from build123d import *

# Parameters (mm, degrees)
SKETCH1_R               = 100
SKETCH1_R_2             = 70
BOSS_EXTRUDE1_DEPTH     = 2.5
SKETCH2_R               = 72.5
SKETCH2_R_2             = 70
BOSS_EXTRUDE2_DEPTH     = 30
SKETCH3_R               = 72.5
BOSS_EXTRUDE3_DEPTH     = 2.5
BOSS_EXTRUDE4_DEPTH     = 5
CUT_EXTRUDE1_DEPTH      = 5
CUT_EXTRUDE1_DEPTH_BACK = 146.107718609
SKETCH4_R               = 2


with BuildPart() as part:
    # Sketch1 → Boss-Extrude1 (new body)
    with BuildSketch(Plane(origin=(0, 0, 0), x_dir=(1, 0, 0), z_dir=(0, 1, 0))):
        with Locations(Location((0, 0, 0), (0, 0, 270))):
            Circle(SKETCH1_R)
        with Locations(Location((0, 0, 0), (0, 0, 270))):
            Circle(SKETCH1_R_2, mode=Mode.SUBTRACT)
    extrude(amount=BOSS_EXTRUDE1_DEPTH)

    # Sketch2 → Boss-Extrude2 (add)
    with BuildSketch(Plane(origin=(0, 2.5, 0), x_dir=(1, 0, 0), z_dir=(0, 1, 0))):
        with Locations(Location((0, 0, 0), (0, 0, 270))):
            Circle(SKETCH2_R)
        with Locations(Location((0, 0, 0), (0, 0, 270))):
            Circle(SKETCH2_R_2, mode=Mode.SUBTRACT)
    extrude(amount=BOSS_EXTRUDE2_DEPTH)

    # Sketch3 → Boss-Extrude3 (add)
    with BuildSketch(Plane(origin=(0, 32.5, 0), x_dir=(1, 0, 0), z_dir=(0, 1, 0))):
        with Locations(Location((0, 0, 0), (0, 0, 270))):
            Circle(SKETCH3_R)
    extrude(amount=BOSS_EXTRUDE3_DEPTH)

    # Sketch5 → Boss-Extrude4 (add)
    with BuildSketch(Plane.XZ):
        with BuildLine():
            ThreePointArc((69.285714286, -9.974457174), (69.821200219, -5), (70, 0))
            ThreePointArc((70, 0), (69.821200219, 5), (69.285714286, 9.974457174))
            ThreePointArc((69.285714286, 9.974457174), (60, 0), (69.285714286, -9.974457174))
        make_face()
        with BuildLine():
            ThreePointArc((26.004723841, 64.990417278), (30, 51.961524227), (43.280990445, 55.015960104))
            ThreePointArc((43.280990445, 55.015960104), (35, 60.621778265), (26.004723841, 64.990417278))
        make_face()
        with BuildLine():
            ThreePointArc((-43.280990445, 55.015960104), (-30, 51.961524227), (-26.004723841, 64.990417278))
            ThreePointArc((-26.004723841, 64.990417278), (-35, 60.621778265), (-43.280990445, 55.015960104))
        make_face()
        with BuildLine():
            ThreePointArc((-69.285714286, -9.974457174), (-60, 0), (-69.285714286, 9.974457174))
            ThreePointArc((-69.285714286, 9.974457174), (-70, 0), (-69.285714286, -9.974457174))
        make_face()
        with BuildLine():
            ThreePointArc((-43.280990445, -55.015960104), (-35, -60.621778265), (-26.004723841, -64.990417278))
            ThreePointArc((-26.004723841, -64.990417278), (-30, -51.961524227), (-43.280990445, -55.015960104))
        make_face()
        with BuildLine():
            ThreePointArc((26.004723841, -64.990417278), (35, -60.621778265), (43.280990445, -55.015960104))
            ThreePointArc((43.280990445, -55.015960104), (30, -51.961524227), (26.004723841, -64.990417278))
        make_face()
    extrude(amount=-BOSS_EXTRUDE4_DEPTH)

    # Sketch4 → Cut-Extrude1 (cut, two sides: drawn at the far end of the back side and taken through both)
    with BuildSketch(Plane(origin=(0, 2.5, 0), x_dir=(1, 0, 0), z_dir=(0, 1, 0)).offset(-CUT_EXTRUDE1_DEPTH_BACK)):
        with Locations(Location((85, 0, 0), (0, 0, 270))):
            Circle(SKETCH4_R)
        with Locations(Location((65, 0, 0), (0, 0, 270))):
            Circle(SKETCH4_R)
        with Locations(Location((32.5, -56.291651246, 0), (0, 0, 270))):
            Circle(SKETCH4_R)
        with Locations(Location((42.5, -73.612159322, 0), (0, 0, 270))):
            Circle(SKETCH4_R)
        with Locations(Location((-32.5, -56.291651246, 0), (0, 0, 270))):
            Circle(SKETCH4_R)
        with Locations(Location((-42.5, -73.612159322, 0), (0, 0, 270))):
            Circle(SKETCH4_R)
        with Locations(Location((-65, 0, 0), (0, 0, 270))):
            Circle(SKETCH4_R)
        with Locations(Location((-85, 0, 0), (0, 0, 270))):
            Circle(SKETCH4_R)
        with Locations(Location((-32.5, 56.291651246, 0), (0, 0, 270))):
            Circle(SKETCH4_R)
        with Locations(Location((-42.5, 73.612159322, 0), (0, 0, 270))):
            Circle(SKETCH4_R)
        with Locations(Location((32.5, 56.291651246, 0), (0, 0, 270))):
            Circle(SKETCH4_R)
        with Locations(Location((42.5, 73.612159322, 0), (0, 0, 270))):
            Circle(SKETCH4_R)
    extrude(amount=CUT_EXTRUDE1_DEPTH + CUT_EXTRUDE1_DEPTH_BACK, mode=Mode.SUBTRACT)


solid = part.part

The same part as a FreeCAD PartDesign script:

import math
import FreeCAD as App
import Part
import Sketcher

V = App.Vector

doc = App.newDocument("Part")
body = doc.addObject("PartDesign::Body", "Body")

# Sketch on XZ plane
sketch1 = body.newObject("Sketcher::SketchObject", "Sketch")
sketch1.AttachmentSupport = (doc.getObject("XZ_Plane"), [""])
sketch1.MapMode = "FlatFace"
sketch1.addGeometry([
    Part.Circle(V(0, 0, 0), V(0, 0, 1), 100),
    Part.Circle(V(0, 0, 0), V(0, 0, 1), 70),
], False)
sketch1.addConstraint([
    Sketcher.Constraint("Coincident", 0, 3, -1, 1),
    Sketcher.Constraint("Coincident", 1, 3, -1, 1),
    Sketcher.Constraint("Diameter", 0, 200.0),
    Sketcher.Constraint("Diameter", 1, 140.0),
])
pad1 = body.newObject("PartDesign::Pad", "Pad")
pad1.Profile = sketch1
pad1.Length = 2.5
pad1.Reversed = True

# Sketch on XZ plane
sketch2 = body.newObject("Sketcher::SketchObject", "Sketch001")
sketch2.AttachmentSupport = (doc.getObject("XZ_Plane"), [""])
sketch2.MapMode = "FlatFace"
sketch2.AttachmentOffset = App.Placement(V(0, 0, -2.5), App.Rotation())
sketch2.addGeometry([
    Part.Circle(V(0, 0, 0), V(0, 0, 1), 72),
    Part.Circle(V(0, 0, 0), V(0, 0, 1), 70),
], False)
sketch2.addConstraint([
    Sketcher.Constraint("Coincident", 0, 3, -1, 1),
    Sketcher.Constraint("Coincident", 1, 3, -1, 1),
    Sketcher.Constraint("Diameter", 0, 145.0),
    Sketcher.Constraint("Diameter", 1, 140.0),
])
pad2 = body.newObject("PartDesign::Pad", "Pad001")
pad2.Profile = sketch2
pad2.Length = 30
pad2.Reversed = True

# Sketch on XZ plane
sketch3 = body.newObject("Sketcher::SketchObject", "Sketch002")
sketch3.AttachmentSupport = (doc.getObject("XZ_Plane"), [""])
sketch3.MapMode = "FlatFace"
sketch3.AttachmentOffset = App.Placement(V(0, 0, -32.5), App.Rotation())
sketch3.addGeometry(Part.Circle(V(0, 0, 0), V(0, 0, 1), 72), False)
sketch3.addConstraint([
    Sketcher.Constraint("Coincident", 0, 3, -1, 1),
    Sketcher.Constraint("Diameter", 0, 145.0),
])
pad3 = body.newObject("PartDesign::Pad", "Pad002")
pad3.Profile = sketch3
pad3.Length = 2.5
pad3.Reversed = True

# Sketch on XZ plane
sketch4 = body.newObject("Sketcher::SketchObject", "Sketch003")
sketch4.AttachmentSupport = (doc.getObject("XZ_Plane"), [""])
sketch4.MapMode = "FlatFace"
sketch4.addGeometry([
    Part.ArcOfCircle(Part.Circle(V(0, 0, 0), V(0, 0, 1), 70), math.radians(-8.19), math.radians(0)),  # 0
    Part.ArcOfCircle(Part.Circle(V(0, 0, 0), V(0, 0, 1), 70), math.radians(0), math.radians(8.19)),  # 1
    Part.ArcOfCircle(Part.Circle(V(70, 0, 0), V(0, 0, 1), 10), math.radians(94), math.radians(266)),  # 2
    Part.ArcOfCircle(Part.Circle(V(35, 61, 0), V(0, 0, 1), 10), math.radians(154), math.radians(326)),  # 3
    Part.ArcOfCircle(Part.Circle(V(0, 0, 0), V(0, 0, 1), 70), math.radians(51.81), math.radians(68.19)),  # 4
    Part.ArcOfCircle(Part.Circle(V(-35, 61, 0), V(0, 0, 1), 10), math.radians(-146), math.radians(26)),  # 5
    Part.ArcOfCircle(Part.Circle(V(0, 0, 0), V(0, 0, 1), 70), math.radians(111.81), math.radians(128.19)),  # 6
    Part.ArcOfCircle(Part.Circle(V(-70, 0, 0), V(0, 0, 1), 10), math.radians(-86), math.radians(86)),  # 7
    Part.ArcOfCircle(Part.Circle(V(0, 0, 0), V(0, 0, 1), 70), math.radians(171.81), math.radians(188.19)),  # 8
    Part.ArcOfCircle(Part.Circle(V(0, 0, 0), V(0, 0, 1), 70), math.radians(-128.19), math.radians(-111.81)),  # 9
    Part.ArcOfCircle(Part.Circle(V(-35, -61, 0), V(0, 0, 1), 10), math.radians(-26), math.radians(146)),  # 10
    Part.ArcOfCircle(Part.Circle(V(0, 0, 0), V(0, 0, 1), 70), math.radians(-68.19), math.radians(-51.81)),  # 11
    Part.ArcOfCircle(Part.Circle(V(35, -61, 0), V(0, 0, 1), 10), math.radians(34), math.radians(206)),  # 12
], False)
sketch4.addConstraint([
    Sketcher.Constraint("Tangent", 0, 2, 1, 1),
    Sketcher.Constraint("Coincident", 1, 2, 2, 1),
    Sketcher.Constraint("Coincident", 2, 2, 0, 1),
    Sketcher.Constraint("Coincident", 3, 1, 4, 2),
    Sketcher.Constraint("Coincident", 4, 1, 3, 2),
    Sketcher.Constraint("Coincident", 5, 1, 6, 2),
    Sketcher.Constraint("Coincident", 6, 1, 5, 2),
    Sketcher.Constraint("Coincident", 7, 1, 8, 2),
    Sketcher.Constraint("Coincident", 8, 1, 7, 2),
    Sketcher.Constraint("Coincident", 9, 1, 10, 2),
    Sketcher.Constraint("Coincident", 10, 1, 9, 2),
    Sketcher.Constraint("Coincident", 11, 1, 12, 2),
    Sketcher.Constraint("Coincident", 12, 1, 11, 2),
    Sketcher.Constraint("Coincident", 0, 3, -1, 1),
    Sketcher.Constraint("Coincident", 4, 3, -1, 1),
    Sketcher.Constraint("Coincident", 6, 3, -1, 1),
    Sketcher.Constraint("Coincident", 8, 3, -1, 1),
    Sketcher.Constraint("Coincident", 9, 3, -1, 1),
    Sketcher.Constraint("Coincident", 11, 3, -1, 1),
    Sketcher.Constraint("Coincident", 0, 2, 2, 3),
    Sketcher.Constraint("Equal", 0, 1),
    Sketcher.Constraint("Equal", 2, 3),
    Sketcher.Constraint("Equal", 1, 4),
    Sketcher.Constraint("Equal", 3, 5),
    Sketcher.Constraint("Equal", 4, 6),
    Sketcher.Constraint("Equal", 5, 7),
    Sketcher.Constraint("Equal", 6, 8),
    Sketcher.Constraint("Equal", 8, 9),
    Sketcher.Constraint("Equal", 7, 10),
    Sketcher.Constraint("Equal", 9, 11),
    Sketcher.Constraint("Equal", 10, 12),
    Sketcher.Constraint("Symmetric", 2, 3, 7, 3, -1, 1),
    Sketcher.Constraint("Symmetric", 3, 3, 10, 3, -1, 1),
    Sketcher.Constraint("Symmetric", 5, 3, 12, 3, -1, 1),
    Sketcher.Constraint("Symmetric", 3, 3, 5, 3, -2),
    Sketcher.Constraint("PointOnObject", 2, 3, -1),
    Sketcher.Constraint("Radius", 0, 70.0),
    Sketcher.Constraint("Radius", 2, 10.0),
    Sketcher.Constraint("DistanceX", -1, 1, 3, 3, 35.0),
    Sketcher.Constraint("DistanceY", -1, 1, 3, 3, 60.621778),
])
pad4 = body.newObject("PartDesign::Pad", "Pad003")
pad4.Profile = sketch4
pad4.Length = 5
pad4.Reversed = True

# Sketch on XZ plane
sketch5 = body.newObject("Sketcher::SketchObject", "Sketch004")
sketch5.AttachmentSupport = (doc.getObject("XZ_Plane"), [""])
sketch5.MapMode = "FlatFace"
sketch5.AttachmentOffset = App.Placement(V(0, 0, -2.5), App.Rotation())
sketch5.addGeometry([
    Part.Circle(V(85, 0, 0), V(0, 0, 1), 2),  # 0
    Part.Circle(V(65, 0, 0), V(0, 0, 1), 2),  # 1
    Part.Circle(V(32.5, 56.3, 0), V(0, 0, 1), 2),  # 2
    Part.Circle(V(42.5, 73.6, 0), V(0, 0, 1), 2),  # 3
    Part.Circle(V(-32.5, 56.3, 0), V(0, 0, 1), 2),  # 4
    Part.Circle(V(-42.5, 73.6, 0), V(0, 0, 1), 2),  # 5
    Part.Circle(V(-65, 0, 0), V(0, 0, 1), 2),  # 6
    Part.Circle(V(-85, 0, 0), V(0, 0, 1), 2),  # 7
    Part.Circle(V(-32.5, -56.3, 0), V(0, 0, 1), 2),  # 8
    Part.Circle(V(-42.5, -73.6, 0), V(0, 0, 1), 2),  # 9
    Part.Circle(V(32.5, -56.3, 0), V(0, 0, 1), 2),  # 10
    Part.Circle(V(42.5, -73.6, 0), V(0, 0, 1), 2),  # 11
], False)
sketch5.addConstraint([
    Sketcher.Constraint("Equal", 0, 1),
    Sketcher.Constraint("Equal", 1, 2),
    Sketcher.Constraint("Equal", 2, 3),
    Sketcher.Constraint("Equal", 3, 4),
    Sketcher.Constraint("Equal", 4, 5),
    Sketcher.Constraint("Equal", 5, 6),
    Sketcher.Constraint("Equal", 6, 7),
    Sketcher.Constraint("Equal", 7, 8),
    Sketcher.Constraint("Equal", 8, 9),
    Sketcher.Constraint("Equal", 9, 10),
    Sketcher.Constraint("Equal", 10, 11),
    Sketcher.Constraint("Symmetric", 1, 3, 6, 3, -1, 1),
    Sketcher.Constraint("Symmetric", 0, 3, 7, 3, -1, 1),
    Sketcher.Constraint("Symmetric", 2, 3, 8, 3, -1, 1),
    Sketcher.Constraint("Symmetric", 3, 3, 9, 3, -1, 1),
    Sketcher.Constraint("Symmetric", 4, 3, 10, 3, -1, 1),
    Sketcher.Constraint("Symmetric", 5, 3, 11, 3, -1, 1),
    Sketcher.Constraint("Symmetric", 2, 3, 4, 3, -2),
    Sketcher.Constraint("Symmetric", 3, 3, 5, 3, -2),
    Sketcher.Constraint("PointOnObject", 0, 3, -1),
    Sketcher.Constraint("PointOnObject", 1, 3, -1),
    Sketcher.Constraint("Diameter", 0, 4.0),
    Sketcher.Constraint("DistanceX", -1, 1, 0, 3, 85.0),
    Sketcher.Constraint("DistanceX", -1, 1, 1, 3, 65.0),
    Sketcher.Constraint("DistanceX", 2, 3, 3, 3, 10.0),
    Sketcher.Constraint("DistanceX", 4, 3, 2, 3, 65.0),
    Sketcher.Constraint("DistanceY", -1, 1, 2, 3, 56.291651),
    Sketcher.Constraint("DistanceY", -1, 1, 3, 3, 73.612159),
])
pocket1 = body.newObject("PartDesign::Pocket", "Pocket")
pocket1.Profile = sketch5
pocket1.Type = "TwoLengths"
pocket1.Length = 5
pocket1.Length2 = 146.107719

doc.recompute()
